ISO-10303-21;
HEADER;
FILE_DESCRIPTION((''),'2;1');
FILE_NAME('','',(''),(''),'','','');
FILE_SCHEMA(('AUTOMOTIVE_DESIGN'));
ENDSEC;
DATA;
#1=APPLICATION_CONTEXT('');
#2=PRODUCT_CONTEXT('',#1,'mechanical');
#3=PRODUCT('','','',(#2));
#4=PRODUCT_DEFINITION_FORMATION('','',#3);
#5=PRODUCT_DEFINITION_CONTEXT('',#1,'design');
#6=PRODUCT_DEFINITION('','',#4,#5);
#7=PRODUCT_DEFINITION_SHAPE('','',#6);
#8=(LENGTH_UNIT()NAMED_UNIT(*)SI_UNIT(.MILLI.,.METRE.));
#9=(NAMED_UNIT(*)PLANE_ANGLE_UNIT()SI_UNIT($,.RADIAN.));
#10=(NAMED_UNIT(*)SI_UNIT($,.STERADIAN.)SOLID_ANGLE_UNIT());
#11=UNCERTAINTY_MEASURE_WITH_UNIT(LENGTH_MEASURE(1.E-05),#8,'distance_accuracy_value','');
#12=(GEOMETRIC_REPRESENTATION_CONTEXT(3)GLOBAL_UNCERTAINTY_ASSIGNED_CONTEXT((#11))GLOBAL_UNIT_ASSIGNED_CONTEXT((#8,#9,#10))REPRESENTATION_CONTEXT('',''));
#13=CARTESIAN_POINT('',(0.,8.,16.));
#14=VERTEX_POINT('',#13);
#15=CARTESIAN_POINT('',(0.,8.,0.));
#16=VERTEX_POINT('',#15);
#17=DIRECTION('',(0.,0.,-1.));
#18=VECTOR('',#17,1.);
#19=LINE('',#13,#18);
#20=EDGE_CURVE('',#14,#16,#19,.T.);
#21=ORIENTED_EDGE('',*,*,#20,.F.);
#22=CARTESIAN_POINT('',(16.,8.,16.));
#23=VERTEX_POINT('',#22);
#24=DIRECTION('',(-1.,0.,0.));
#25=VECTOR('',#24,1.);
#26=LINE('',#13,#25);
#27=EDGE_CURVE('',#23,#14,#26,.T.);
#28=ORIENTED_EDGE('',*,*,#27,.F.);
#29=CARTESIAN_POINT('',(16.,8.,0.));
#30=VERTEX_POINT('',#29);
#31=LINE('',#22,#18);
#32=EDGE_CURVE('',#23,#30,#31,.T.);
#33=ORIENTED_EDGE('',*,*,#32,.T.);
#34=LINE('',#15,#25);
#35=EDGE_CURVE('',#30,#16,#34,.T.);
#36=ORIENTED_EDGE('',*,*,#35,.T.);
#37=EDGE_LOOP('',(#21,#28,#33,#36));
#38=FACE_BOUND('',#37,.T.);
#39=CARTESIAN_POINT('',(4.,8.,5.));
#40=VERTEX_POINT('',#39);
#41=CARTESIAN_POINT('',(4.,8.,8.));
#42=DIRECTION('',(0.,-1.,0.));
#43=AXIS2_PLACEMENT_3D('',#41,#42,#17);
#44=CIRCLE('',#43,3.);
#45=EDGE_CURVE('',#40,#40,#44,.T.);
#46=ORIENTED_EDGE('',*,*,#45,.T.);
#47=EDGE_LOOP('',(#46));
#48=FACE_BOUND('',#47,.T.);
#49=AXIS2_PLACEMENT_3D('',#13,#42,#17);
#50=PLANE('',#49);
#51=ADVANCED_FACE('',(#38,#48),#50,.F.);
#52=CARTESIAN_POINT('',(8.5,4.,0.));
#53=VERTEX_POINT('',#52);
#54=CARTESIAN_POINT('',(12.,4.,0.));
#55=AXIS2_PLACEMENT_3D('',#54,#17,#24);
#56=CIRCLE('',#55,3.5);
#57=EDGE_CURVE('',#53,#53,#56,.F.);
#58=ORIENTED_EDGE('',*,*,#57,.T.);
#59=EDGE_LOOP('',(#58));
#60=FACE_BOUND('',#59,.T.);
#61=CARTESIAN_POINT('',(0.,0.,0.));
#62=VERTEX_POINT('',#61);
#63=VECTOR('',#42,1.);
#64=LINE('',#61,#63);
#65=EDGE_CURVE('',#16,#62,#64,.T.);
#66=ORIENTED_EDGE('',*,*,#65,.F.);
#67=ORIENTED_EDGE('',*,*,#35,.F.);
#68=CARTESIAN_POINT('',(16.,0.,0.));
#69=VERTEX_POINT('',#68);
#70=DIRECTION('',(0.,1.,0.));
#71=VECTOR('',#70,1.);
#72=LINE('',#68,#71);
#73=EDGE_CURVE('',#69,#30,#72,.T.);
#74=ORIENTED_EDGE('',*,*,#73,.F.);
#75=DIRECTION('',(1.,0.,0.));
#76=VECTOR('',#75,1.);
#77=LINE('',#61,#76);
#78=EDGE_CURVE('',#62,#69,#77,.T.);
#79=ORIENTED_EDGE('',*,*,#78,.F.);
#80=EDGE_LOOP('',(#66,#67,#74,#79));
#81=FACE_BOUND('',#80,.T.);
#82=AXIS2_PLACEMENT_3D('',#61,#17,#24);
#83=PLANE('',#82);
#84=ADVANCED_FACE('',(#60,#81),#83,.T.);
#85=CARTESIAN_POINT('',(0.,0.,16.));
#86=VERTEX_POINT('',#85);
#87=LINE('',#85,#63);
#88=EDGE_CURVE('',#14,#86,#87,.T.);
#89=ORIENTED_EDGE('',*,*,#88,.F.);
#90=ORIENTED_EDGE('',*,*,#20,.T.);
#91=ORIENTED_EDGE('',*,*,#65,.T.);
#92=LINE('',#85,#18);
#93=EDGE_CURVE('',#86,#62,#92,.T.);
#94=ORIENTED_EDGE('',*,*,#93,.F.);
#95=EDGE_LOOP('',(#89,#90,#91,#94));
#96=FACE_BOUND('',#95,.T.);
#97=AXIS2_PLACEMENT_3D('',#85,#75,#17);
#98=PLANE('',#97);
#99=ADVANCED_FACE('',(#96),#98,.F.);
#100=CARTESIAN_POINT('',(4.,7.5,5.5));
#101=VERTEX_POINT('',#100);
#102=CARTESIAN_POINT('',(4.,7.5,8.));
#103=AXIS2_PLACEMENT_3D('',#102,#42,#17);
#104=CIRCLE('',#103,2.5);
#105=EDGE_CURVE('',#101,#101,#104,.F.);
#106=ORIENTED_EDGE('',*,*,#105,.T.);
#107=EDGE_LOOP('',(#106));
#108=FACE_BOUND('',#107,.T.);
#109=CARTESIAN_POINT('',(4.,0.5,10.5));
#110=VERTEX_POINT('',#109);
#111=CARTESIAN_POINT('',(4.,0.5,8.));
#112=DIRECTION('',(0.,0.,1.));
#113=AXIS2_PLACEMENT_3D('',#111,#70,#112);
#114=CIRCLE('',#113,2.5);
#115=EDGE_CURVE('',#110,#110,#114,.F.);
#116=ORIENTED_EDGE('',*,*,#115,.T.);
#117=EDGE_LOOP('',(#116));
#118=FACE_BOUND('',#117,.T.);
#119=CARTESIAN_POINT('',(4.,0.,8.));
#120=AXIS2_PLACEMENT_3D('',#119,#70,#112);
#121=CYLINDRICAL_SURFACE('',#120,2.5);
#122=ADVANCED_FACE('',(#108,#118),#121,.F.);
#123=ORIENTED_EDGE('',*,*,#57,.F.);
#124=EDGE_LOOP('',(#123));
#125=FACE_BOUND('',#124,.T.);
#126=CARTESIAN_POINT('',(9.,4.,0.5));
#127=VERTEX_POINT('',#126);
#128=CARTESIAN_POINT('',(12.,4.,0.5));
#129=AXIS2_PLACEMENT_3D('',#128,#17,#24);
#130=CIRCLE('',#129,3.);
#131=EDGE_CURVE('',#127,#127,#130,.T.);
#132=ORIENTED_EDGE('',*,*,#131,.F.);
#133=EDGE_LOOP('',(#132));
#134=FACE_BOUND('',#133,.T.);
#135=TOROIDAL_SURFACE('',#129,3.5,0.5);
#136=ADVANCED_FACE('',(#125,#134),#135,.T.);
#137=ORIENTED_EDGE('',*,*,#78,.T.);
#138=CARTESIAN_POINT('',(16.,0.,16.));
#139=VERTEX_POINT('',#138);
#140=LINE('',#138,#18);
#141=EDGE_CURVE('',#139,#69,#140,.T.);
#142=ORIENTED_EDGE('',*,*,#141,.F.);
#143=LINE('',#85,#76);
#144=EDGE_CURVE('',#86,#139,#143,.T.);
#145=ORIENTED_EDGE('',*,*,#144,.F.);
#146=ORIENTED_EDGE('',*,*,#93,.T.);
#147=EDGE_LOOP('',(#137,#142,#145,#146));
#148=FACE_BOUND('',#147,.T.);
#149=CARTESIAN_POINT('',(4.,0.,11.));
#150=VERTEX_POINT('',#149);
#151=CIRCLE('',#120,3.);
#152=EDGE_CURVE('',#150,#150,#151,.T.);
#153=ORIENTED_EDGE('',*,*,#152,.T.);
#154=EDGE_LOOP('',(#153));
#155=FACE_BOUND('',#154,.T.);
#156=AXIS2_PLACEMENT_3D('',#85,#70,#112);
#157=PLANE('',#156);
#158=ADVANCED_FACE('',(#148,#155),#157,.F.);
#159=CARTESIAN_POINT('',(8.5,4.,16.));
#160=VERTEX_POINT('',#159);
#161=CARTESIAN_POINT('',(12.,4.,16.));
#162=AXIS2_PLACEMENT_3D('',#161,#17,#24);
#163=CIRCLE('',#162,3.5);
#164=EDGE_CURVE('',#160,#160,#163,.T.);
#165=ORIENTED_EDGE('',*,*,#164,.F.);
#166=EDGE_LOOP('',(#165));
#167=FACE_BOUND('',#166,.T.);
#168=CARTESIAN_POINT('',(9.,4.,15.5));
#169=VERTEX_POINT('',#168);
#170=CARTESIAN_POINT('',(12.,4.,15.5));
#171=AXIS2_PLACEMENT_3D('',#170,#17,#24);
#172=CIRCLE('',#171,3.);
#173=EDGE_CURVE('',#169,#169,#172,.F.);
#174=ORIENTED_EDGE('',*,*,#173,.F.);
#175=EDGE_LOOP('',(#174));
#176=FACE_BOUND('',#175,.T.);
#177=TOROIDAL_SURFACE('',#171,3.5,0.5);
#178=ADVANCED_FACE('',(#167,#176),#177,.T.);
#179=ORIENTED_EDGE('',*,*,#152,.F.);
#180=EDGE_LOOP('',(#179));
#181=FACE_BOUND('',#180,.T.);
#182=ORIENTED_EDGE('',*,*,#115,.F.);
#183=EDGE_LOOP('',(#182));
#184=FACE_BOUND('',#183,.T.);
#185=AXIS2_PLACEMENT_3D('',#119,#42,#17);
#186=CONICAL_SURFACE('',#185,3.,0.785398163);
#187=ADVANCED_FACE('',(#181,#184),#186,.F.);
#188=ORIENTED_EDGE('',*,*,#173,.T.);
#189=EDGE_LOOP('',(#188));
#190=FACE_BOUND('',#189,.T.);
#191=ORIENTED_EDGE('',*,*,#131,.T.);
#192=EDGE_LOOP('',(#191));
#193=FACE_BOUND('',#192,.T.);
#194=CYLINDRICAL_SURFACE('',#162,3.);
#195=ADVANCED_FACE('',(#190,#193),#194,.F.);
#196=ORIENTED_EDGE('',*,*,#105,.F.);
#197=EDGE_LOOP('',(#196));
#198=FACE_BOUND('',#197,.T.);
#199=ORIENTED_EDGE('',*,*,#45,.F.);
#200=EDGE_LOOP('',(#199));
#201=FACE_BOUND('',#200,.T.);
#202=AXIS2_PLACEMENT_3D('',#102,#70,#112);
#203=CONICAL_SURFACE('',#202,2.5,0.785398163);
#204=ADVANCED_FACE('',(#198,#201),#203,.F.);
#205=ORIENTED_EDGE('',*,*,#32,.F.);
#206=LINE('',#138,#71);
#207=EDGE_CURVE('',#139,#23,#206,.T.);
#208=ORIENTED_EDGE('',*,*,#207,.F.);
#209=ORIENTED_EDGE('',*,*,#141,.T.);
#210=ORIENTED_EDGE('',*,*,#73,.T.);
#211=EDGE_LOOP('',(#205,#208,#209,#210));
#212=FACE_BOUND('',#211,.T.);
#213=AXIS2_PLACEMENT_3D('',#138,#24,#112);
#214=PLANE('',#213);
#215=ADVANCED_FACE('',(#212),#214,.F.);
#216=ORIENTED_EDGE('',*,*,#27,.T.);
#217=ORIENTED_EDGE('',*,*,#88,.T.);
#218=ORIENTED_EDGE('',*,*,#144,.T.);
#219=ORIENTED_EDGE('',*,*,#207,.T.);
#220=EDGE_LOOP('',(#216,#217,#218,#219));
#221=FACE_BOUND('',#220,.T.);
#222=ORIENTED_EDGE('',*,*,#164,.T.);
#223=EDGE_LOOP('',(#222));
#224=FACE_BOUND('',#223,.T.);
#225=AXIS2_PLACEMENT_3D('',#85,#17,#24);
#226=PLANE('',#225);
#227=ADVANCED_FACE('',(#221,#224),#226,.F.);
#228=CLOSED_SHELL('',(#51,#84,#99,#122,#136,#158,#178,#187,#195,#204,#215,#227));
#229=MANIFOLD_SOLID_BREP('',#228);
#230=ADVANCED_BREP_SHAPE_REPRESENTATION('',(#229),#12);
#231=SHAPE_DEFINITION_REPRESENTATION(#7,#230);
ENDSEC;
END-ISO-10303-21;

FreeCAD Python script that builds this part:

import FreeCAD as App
import Part
import Sketcher


def edges_at(feature, points):
    """Names of the edges that pass closest to the given points."""
    edges = feature.Shape.Edges
    near = lambda p: min(range(len(edges)), key=lambda i: edges[i].distToShape(Part.Vertex(*p))[0])
    return sorted({f"Edge{near(p) + 1}" for p in points})


def add_polygon(sketch, points):
    """Adds a closed chain of lines whose ends are joined by coincident constraints."""
    first, n = sketch.GeometryCount, len(points)
    for a, b in zip(points, points[1:] + points[:1]):
        sketch.addGeometry(Part.LineSegment(App.Vector(*a, 0), App.Vector(*b, 0)), False)
    for i in range(n):
        sketch.addConstraint(Sketcher.Constraint("Coincident", first + i, 2, first + (i + 1) % n, 1))

doc = App.newDocument("Part")
body = doc.addObject("PartDesign::Body", "Body")

# Sketch on XY plane
sketch1 = body.newObject("Sketcher::SketchObject", "Sketch")
sketch1.AttachmentSupport = (doc.getObject("XY_Plane"), [""])
sketch1.MapMode = "FlatFace"
add_polygon(sketch1, [(0, 8), (0, 0), (16, 0), (16, 8)])  # lines 0-3
sketch1.addGeometry(Part.Circle(App.Vector(12, 4, 0), App.Vector(0, 0, 1), 3), False)  # 4
sketch1.addConstraint(Sketcher.Constraint("Vertical", 0))
sketch1.addConstraint(Sketcher.Constraint("Horizontal", 1))
sketch1.addConstraint(Sketcher.Constraint("Vertical", 2))
sketch1.addConstraint(Sketcher.Constraint("Horizontal", 3))
sketch1.addConstraint(Sketcher.Constraint("Coincident", 0, 2, -1, 1))
sketch1.addConstraint(Sketcher.Constraint("Diameter", 4, 6.0))
sketch1.addConstraint(Sketcher.Constraint("DistanceX", 1, 1, 1, 2, 16.0))
sketch1.addConstraint(Sketcher.Constraint("DistanceY", 0, 2, 0, 1, 8.0))
sketch1.addConstraint(Sketcher.Constraint("DistanceX", -1, 1, 4, 3, 12.0))
sketch1.addConstraint(Sketcher.Constraint("DistanceY", -1, 1, 4, 3, 4.0))
pad1 = body.newObject("PartDesign::Pad", "Pad")
pad1.Profile = sketch1
pad1.Length = 16

# Sketch on XZ plane
sketch2 = body.newObject("Sketcher::SketchObject", "Sketch001")
sketch2.AttachmentSupport = (doc.getObject("XZ_Plane"), [""])
sketch2.MapMode = "FlatFace"
sketch2.AttachmentOffset = App.Placement(App.Vector(0, 0, -8), App.Rotation())
sketch2.addGeometry(Part.Circle(App.Vector(4, 8, 0), App.Vector(0, 0, 1), 2.5), False)
sketch2.addConstraint(Sketcher.Constraint("Diameter", 0, 5.0))
sketch2.addConstraint(Sketcher.Constraint("DistanceX", -1, 1, 0, 3, 4.0))
sketch2.addConstraint(Sketcher.Constraint("DistanceY", -1, 1, 0, 3, 8.0))
pocket1 = body.newObject("PartDesign::Pocket", "Pocket")
pocket1.Profile = sketch2
pocket1.Type = "ThroughAll"
pocket1.Reversed = True
doc.recompute()

chamfer = body.newObject("PartDesign::Chamfer", "Chamfer")
chamfer.Base = (pocket1, edges_at(pocket1, [(1.5, 0, 8), (1.5, 8, 8)]))
chamfer.Size = 0.5
doc.recompute()

fillet = body.newObject("PartDesign::Fillet", "Fillet")
fillet.Base = (chamfer, edges_at(chamfer, [(9, 4, 0), (9, 4, 16)]))
fillet.Radius = 0.5

doc.recompute()
